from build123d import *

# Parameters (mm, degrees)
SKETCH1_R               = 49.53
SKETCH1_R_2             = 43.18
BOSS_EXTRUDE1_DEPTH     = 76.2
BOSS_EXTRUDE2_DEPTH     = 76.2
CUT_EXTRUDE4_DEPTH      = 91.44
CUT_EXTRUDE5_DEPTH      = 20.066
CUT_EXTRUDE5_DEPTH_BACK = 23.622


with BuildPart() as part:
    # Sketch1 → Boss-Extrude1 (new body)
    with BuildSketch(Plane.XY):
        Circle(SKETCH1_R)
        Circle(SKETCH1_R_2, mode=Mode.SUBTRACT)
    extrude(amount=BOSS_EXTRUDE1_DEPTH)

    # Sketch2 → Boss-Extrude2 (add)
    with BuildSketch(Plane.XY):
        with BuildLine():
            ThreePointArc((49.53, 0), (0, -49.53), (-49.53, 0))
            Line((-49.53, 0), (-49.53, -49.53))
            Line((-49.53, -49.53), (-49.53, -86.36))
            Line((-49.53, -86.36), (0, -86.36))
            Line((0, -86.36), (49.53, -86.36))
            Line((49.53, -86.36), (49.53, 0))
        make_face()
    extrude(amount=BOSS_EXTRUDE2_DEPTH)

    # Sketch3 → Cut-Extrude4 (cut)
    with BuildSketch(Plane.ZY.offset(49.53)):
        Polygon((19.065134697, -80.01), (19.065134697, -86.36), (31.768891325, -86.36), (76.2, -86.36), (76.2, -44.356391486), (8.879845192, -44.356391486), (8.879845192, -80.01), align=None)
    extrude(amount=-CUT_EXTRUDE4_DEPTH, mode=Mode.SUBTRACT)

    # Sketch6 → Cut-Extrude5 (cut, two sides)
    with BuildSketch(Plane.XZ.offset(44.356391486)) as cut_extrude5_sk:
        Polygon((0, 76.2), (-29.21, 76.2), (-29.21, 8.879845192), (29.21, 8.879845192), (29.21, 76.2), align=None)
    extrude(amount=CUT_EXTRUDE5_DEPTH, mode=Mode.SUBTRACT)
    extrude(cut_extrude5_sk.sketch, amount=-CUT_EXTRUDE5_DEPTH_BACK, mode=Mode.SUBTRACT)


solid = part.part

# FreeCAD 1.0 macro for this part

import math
import FreeCAD as App
import Part
import Sketcher
Q = App.Units.Quantity


def add_polygon(sketch, points):
    """Adds a closed chain of lines whose ends are joined by coincident constraints."""
    first, n = sketch.GeometryCount, len(points)
    for a, b in zip(points, points[1:] + points[:1]):
        sketch.addGeometry(Part.LineSegment(App.Vector(*a, 0), App.Vector(*b, 0)), False)
    for i in range(n):
        sketch.addConstraint(Sketcher.Constraint("Coincident", first + i, 2, first + (i + 1) % n, 1))

doc = App.newDocument("Part")
params = doc.addObject("Spreadsheet::Sheet", "Params")
for row, (alias, value) in enumerate([
    ("sketch1_diameter", "3.9 in"),
    ("sketch1_diameter2", "3.4 in"),
    ("pad1_length", "3 in"),
    ("sketch2_radius", "1.95 in"),
    ("sketch2_height", "3.4 in"),
    ("pad2_length", "3 in"),
    ("sketch3_width", "0.25 in"),
    ("pocket1_length", "3.6 in"),
    ("sketch4_width", "2.3 in"),
    ("pocket2_length", "0.79 in"),
    ("pocket2_length2", "0.93 in"),
], start=1):
    params.set(f"A{row}", alias)
    params.set(f"B{row}", "=" + value)
    params.setAlias(f"B{row}", alias)

body = doc.addObject("PartDesign::Body", "Body")

# Sketch on XY plane
sketch1 = body.newObject("Sketcher::SketchObject", "Sketch")
sketch1.AttachmentSupport = (doc.getObject("XY_Plane"), [""])
sketch1.MapMode = "FlatFace"
sketch1.addGeometry([
    Part.Circle(App.Vector(0, 0, 0), App.Vector(0, 0, 1), 50),
    Part.Circle(App.Vector(0, 0, 0), App.Vector(0, 0, 1), 43),
], False)
sketch1.addConstraint([
    Sketcher.Constraint("Coincident", 0, 3, -1, 1),
    Sketcher.Constraint("Coincident", 1, 3, -1, 1),
    Sketcher.Constraint("Diameter", 0, Q("3.9 in")),
    Sketcher.Constraint("Diameter", 1, Q("3.4 in")),
])
sketch1.setExpression("Constraints[2]", "Params.sketch1_diameter")
sketch1.setExpression("Constraints[3]", "Params.sketch1_diameter2")
pad1 = body.newObject("PartDesign::Pad", "Pad")
pad1.Profile = sketch1
pad1.setExpression("Length", "Params.pad1_length")

# Sketch on XY plane
sketch2 = body.newObject("Sketcher::SketchObject", "Sketch001")
sketch2.AttachmentSupport = (doc.getObject("XY_Plane"), [""])
sketch2.MapMode = "FlatFace"
sketch2.addGeometry([
    Part.ArcOfCircle(Part.Circle(App.Vector(0, 0, 0), App.Vector(0, 0, 1), 50), math.radians(180), math.radians(360)),
    Part.LineSegment(App.Vector(-50, 0, 0), App.Vector(-50, -86, 0)),
    Part.LineSegment(App.Vector(-50, -86, 0), App.Vector(50, -86, 0)),
    Part.LineSegment(App.Vector(50, -86, 0), App.Vector(50, 0, 0)),
], False)
sketch2.addConstraint([
    Sketcher.Constraint("Tangent", 0, 1, 1, 1),
    Sketcher.Constraint("Coincident", 1, 2, 2, 1),
    Sketcher.Constraint("Coincident", 2, 2, 3, 1),
    Sketcher.Constraint("Tangent", 3, 2, 0, 2),
    Sketcher.Constraint("Vertical", 1),
    Sketcher.Constraint("Horizontal", 2),
    Sketcher.Constraint("Vertical", 3),
    Sketcher.Constraint("Coincident", 0, 3, -1, 1),
    Sketcher.Constraint("Radius", 0, Q("1.95 in")),
    Sketcher.Constraint("DistanceY", 1, 2, 1, 1, Q("3.4 in")),
])
sketch2.setExpression("Constraints[8]", "Params.sketch2_radius")
sketch2.setExpression("Constraints[9]", "Params.sketch2_height")
pad2 = body.newObject("PartDesign::Pad", "Pad001")
pad2.Profile = sketch2
pad2.setExpression("Length", "Params.pad2_length")

# Sketch on YZ plane
sketch3 = body.newObject("Sketcher::SketchObject", "Sketch002")
sketch3.AttachmentSupport = (doc.getObject("YZ_Plane"), [""])
sketch3.MapMode = "FlatFace"
sketch3.AttachmentOffset = App.Placement(App.Vector(0, 0, -1.95 * 25.4), App.Rotation())
add_polygon(sketch3, [(-80, 19), (-86, 19), (-86, 76), (-44, 76), (-44, 9), (-80, 9)])  # lines 0-5
sketch3.addConstraint([
    Sketcher.Constraint("Horizontal", 0),
    Sketcher.Constraint("Vertical", 1),
    Sketcher.Constraint("Horizontal", 2),
    Sketcher.Constraint("Vertical", 3),
    Sketcher.Constraint("Horizontal", 4),
    Sketcher.Constraint("Vertical", 5),
    Sketcher.Constraint("DistanceY", -1, 1, 1, 2, Q("3 in")),
    Sketcher.Constraint("DistanceX", 0, 2, 0, 1, Q("0.25 in")),
    Sketcher.Constraint("DistanceX", 0, 2, -1, 1, Q("3.4 in")),
    Sketcher.Constraint("DistanceX", 2, 1, 2, 2, Q("42.003609 mm")),
    Sketcher.Constraint("DistanceY", 5, 1, 5, 2, Q("10.18529 mm")),
    Sketcher.Constraint("DistanceY", 1, 1, 1, 2, Q("57.134865 mm")),
])
sketch3.setExpression("Constraints[13]", "Params.sketch3_width")
pocket1 = body.newObject("PartDesign::Pocket", "Pocket")
pocket1.Profile = sketch3
pocket1.setExpression("Length", "Params.pocket1_length")
pocket1.Reversed = True

# Sketch on XZ plane
sketch4 = body.newObject("Sketcher::SketchObject", "Sketch003")
sketch4.AttachmentSupport = (doc.getObject("XZ_Plane"), [""])
sketch4.MapMode = "FlatFace"
sketch4.AttachmentOffset = App.Placement(App.Vector(0, 0, 44.356391), App.Rotation())
add_polygon(sketch4, [(-29, 76), (-29, 9), (29, 9), (29, 76)])  # lines 0-3
sketch4.addConstraint([
    Sketcher.Constraint("Vertical", 0),
    Sketcher.Constraint("Horizontal", 1),
    Sketcher.Constraint("Vertical", 2),
    Sketcher.Constraint("Horizontal", 3),
    Sketcher.Constraint("DistanceX", 1, 1, 1, 2, Q("2.3 in")),
    Sketcher.Constraint("DistanceY", -1, 1, 2, 2, Q("3 in")),
    Sketcher.Constraint("DistanceX", 0, 2, -1, 1, Q("1.15 in")),
    Sketcher.Constraint("DistanceY", 0, 2, 0, 1, Q("67.320155 mm")),
])
sketch4.setExpression("Constraints[8]", "Params.sketch4_width")
pocket2 = body.newObject("PartDesign::Pocket", "Pocket001")
pocket2.Profile = sketch4
pocket2.Type = "TwoLengths"
pocket2.setExpression("Length", "Params.pocket2_length")
pocket2.setExpression("Length2", "Params.pocket2_length2")
pocket2.Reversed = True

doc.recompute()
